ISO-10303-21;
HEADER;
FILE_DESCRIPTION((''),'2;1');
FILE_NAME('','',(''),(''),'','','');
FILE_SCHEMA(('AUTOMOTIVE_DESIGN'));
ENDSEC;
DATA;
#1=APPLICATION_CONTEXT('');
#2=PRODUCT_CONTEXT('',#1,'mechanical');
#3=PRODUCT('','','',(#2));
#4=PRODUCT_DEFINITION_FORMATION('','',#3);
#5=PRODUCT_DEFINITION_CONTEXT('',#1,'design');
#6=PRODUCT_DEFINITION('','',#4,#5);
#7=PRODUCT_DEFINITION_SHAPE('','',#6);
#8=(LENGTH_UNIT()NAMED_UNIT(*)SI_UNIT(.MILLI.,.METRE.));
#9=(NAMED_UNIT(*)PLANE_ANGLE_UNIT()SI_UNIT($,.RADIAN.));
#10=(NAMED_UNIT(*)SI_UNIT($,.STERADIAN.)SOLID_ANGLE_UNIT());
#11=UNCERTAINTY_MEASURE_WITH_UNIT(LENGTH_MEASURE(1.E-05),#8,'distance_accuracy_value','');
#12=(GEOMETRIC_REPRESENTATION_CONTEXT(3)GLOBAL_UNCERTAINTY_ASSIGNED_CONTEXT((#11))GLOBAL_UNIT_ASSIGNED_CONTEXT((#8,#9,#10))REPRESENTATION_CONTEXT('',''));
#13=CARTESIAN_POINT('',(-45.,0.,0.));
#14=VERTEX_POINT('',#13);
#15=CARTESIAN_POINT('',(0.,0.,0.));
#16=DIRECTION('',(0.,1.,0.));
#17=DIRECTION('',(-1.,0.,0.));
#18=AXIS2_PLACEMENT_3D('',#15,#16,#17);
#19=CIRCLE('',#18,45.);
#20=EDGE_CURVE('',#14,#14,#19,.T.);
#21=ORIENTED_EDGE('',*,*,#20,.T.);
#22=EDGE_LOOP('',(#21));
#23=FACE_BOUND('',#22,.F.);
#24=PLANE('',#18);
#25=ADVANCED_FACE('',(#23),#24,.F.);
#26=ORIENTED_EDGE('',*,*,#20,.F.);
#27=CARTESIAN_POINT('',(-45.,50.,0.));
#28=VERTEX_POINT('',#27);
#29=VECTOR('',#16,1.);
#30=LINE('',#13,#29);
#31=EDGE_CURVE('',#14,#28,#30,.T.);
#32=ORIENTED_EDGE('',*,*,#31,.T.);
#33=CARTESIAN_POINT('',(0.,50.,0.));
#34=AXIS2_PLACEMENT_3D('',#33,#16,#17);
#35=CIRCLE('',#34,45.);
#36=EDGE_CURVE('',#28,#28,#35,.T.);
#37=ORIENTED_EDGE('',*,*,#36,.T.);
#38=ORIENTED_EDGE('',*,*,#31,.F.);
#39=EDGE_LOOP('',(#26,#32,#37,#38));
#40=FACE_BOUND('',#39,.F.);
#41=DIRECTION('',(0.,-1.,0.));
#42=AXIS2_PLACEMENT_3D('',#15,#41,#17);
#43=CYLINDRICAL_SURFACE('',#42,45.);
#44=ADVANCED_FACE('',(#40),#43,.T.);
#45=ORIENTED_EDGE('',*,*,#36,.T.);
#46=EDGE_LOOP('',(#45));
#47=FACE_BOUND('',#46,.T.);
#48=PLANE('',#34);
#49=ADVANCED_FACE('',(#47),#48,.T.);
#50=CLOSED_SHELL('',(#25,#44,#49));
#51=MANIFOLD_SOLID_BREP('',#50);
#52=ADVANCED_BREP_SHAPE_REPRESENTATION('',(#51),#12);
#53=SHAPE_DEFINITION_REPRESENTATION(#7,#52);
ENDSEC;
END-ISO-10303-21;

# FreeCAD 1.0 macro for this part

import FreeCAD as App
import Part
import Sketcher

doc = App.newDocument("Part")
body = doc.addObject("PartDesign::Body", "Body")

sketch1 = body.newObject("Sketcher::SketchObject", "Sketch")
sketch1.AttachmentSupport = (doc.getObject("XZ_Plane"), [""])
sketch1.MapMode = "FlatFace"
sketch1.addGeometry(Part.Circle(App.Vector(0, 0, 0), App.Vector(0, 0, 1), 45), False)
sketch1.addConstraint([
    Sketcher.Constraint("Coincident", 0, 3, -1, 1),
    Sketcher.Constraint("Diameter", 0, 90.0),
])
pad1 = body.newObject("PartDesign::Pad", "Pad")
pad1.Profile = sketch1
pad1.Length = 50
pad1.Reversed = True

doc.recompute()
